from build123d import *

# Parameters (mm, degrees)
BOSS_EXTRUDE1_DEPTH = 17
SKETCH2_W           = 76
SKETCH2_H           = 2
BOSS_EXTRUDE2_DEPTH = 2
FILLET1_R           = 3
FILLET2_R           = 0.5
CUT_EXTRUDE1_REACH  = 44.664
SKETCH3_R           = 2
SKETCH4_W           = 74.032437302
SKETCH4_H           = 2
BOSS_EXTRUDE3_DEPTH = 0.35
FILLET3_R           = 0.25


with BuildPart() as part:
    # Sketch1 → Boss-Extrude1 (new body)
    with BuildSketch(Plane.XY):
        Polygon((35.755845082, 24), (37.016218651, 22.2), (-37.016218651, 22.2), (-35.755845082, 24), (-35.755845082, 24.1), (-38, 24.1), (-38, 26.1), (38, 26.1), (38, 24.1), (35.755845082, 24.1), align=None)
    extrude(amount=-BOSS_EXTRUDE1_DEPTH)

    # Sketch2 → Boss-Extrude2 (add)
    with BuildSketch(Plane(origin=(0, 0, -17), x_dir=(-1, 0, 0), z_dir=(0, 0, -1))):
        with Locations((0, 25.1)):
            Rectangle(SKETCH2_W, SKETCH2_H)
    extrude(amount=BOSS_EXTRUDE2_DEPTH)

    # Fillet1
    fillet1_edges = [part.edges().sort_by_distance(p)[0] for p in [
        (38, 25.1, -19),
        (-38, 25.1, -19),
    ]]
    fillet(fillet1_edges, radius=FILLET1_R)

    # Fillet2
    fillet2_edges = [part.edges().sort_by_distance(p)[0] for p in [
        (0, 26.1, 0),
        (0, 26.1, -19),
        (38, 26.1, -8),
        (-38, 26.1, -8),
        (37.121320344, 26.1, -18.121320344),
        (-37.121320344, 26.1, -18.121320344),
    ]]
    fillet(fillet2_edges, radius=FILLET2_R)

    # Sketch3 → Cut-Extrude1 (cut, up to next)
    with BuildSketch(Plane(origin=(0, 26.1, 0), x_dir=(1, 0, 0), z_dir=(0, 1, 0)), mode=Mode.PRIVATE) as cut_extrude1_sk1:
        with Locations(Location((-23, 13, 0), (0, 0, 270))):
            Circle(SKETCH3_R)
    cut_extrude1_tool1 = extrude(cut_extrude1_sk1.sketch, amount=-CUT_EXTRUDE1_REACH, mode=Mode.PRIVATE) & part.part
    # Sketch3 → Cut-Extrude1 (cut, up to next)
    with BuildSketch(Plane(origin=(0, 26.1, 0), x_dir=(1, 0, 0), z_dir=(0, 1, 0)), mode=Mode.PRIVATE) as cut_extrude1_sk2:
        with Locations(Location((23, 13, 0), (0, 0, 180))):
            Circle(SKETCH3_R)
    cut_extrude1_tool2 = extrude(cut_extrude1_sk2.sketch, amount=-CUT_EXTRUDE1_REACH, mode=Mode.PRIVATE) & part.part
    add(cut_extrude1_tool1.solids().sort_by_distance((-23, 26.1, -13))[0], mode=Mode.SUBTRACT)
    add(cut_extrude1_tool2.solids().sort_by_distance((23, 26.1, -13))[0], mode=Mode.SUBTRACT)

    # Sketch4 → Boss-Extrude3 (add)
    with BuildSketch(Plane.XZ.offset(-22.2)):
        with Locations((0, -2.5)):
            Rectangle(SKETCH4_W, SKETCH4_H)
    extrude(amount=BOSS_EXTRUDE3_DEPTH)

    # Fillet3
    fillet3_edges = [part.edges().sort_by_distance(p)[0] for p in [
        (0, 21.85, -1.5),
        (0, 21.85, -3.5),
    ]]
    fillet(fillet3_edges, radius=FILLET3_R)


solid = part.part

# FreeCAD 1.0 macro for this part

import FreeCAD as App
import Part
import Sketcher
Q = App.Units.Quantity


def edges_at(feature, points):
    """Names of the edges that pass closest to the given points."""
    edges = feature.Shape.Edges
    near = lambda p: min(range(len(edges)), key=lambda i: edges[i].distToShape(Part.Vertex(*p))[0])
    return sorted({f"Edge{near(p) + 1}" for p in points})

doc = App.newDocument("Part")
params = doc.addObject("Spreadsheet::Sheet", "Params")
for row, (alias, value) in enumerate([
    ("sketch1_width", "76 mm"),
    ("sketch1_height", "2 mm"),
    ("sketch1_height2", "0.1 mm"),
    ("pad1_length", "17 mm"),
    ("sketch2_width", "76 mm"),
    ("sketch2_height", "2 mm"),
    ("pad2_length", "2 mm"),
    ("fillet_radius", "3 mm"),
    ("fillet2_radius", "0.5 mm"),
    ("sketch3_diameter", "4 mm"),
    ("sketch4_diameter", "4 mm"),
    ("sketch5_height", "2 mm"),
    ("pad3_length", "0.35 mm"),
    ("fillet3_radius", "0.25 mm"),
], start=1):
    params.set(f"A{row}", alias)
    params.set(f"B{row}", "=" + value)
    params.setAlias(f"B{row}", alias)

body = doc.addObject("PartDesign::Body", "Body")

sketch1 = doc.addObject("Sketcher::SketchObject", "Sketch")
body.addObject(sketch1)
sketch1.AttachmentSupport = (doc.XY_Plane, [""])
sketch1.MapMode = "FlatFace"
sketch1.addGeometry([
    Part.LineSegment(App.Vector(37.02, 22.2, 0), App.Vector(35.76, 24, 0)),
    Part.LineSegment(App.Vector(35.76, 24, 0), App.Vector(35.76, 24.1, 0)),
    Part.LineSegment(App.Vector(35.76, 24.1, 0), App.Vector(38, 24.1, 0)),
    Part.LineSegment(App.Vector(38, 24.1, 0), App.Vector(38, 26.1, 0)),
    Part.LineSegment(App.Vector(38, 26.1, 0), App.Vector(-38, 26.1, 0)),
    Part.LineSegment(App.Vector(-38, 26.1, 0), App.Vector(-38, 24.1, 0)),
    Part.LineSegment(App.Vector(-38, 24.1, 0), App.Vector(-35.76, 24.1, 0)),
    Part.LineSegment(App.Vector(-35.76, 24.1, 0), App.Vector(-35.76, 24, 0)),
    Part.LineSegment(App.Vector(-35.76, 24, 0), App.Vector(-37.02, 22.2, 0)),
    Part.LineSegment(App.Vector(-37.02, 22.2, 0), App.Vector(37.02, 22.2, 0)),
], False)
sketch1.addConstraint([
    Sketcher.Constraint("Coincident", 0, 2, 1, 1),
    Sketcher.Constraint("Coincident", 1, 2, 2, 1),
    Sketcher.Constraint("Coincident", 2, 2, 3, 1),
    Sketcher.Constraint("Coincident", 3, 2, 4, 1),
    Sketcher.Constraint("Coincident", 4, 2, 5, 1),
    Sketcher.Constraint("Coincident", 5, 2, 6, 1),
    Sketcher.Constraint("Coincident", 6, 2, 7, 1),
    Sketcher.Constraint("Coincident", 7, 2, 8, 1),
    Sketcher.Constraint("Coincident", 8, 2, 9, 1),
    Sketcher.Constraint("Coincident", 9, 2, 0, 1),
    Sketcher.Constraint("Vertical", 1),
    Sketcher.Constraint("Horizontal", 2),
    Sketcher.Constraint("Vertical", 3),
    Sketcher.Constraint("Horizontal", 4),
    Sketcher.Constraint("Vertical", 5),
    Sketcher.Constraint("Horizontal", 6),
    Sketcher.Constraint("Vertical", 7),
    Sketcher.Constraint("Horizontal", 9),
    Sketcher.Constraint("Symmetric", 2, 2, 5, 2, -2),
    Sketcher.Constraint("Symmetric", 0, 2, 7, 2, -2),
    Sketcher.Constraint("Equal", 0, 8),
    Sketcher.Constraint("DistanceX", 4, 2, 4, 1, Q("76 mm")),
    Sketcher.Constraint("DistanceY", 3, 1, 3, 2, Q("2 mm")),
    Sketcher.Constraint("Angle", 0, Q("125 deg")),
    Sketcher.Constraint("DistanceY", 1, 1, 1, 2, Q("0.1 mm")),
    Sketcher.Constraint("DistanceY", -1, 1, 0, 2, Q("24 mm")),
    Sketcher.Constraint("DistanceY", -1, 1, 8, 2, Q("22.2 mm")),
    Sketcher.Constraint("DistanceX", 2, 1, 2, 2, Q("2.244155 mm")),
])
sketch1.setExpression("Constraints[21]", "Params.sketch1_width")
sketch1.setExpression("Constraints[22]", "Params.sketch1_height")
sketch1.setExpression("Constraints[24]", "Params.sketch1_height2")
pad1 = doc.addObject("PartDesign::Pad", "Pad")
body.addObject(pad1)
pad1.Profile = sketch1
pad1.setExpression("Length", "Params.pad1_length")
pad1.Reversed = True

sketch2 = doc.addObject("Sketcher::SketchObject", "Sketch001")
body.addObject(sketch2)
sketch2.AttachmentSupport = (doc.XY_Plane, [""])
sketch2.MapMode = "FlatFace"
sketch2.AttachmentOffset = App.Placement(App.Vector(0, 0, -17), App.Rotation())
sketch2.addGeometry([
    Part.LineSegment(App.Vector(38, 26.1, 0), App.Vector(38, 24.1, 0)),
    Part.LineSegment(App.Vector(38, 24.1, 0), App.Vector(-38, 24.1, 0)),
    Part.LineSegment(App.Vector(-38, 24.1, 0), App.Vector(-38, 26.1, 0)),
    Part.LineSegment(App.Vector(-38, 26.1, 0), App.Vector(38, 26.1, 0)),
], False)
sketch2.addConstraint([
    Sketcher.Constraint("Coincident", 0, 2, 1, 1),
    Sketcher.Constraint("Coincident", 1, 2, 2, 1),
    Sketcher.Constraint("Coincident", 2, 2, 3, 1),
    Sketcher.Constraint("Coincident", 3, 2, 0, 1),
    Sketcher.Constraint("Vertical", 0),
    Sketcher.Constraint("Horizontal", 1),
    Sketcher.Constraint("Vertical", 2),
    Sketcher.Constraint("Horizontal", 3),
    Sketcher.Constraint("DistanceX", 1, 2, 1, 1, Q("76 mm")),
    Sketcher.Constraint("DistanceY", 0, 2, 0, 1, Q("2 mm")),
    Sketcher.Constraint("DistanceX", -1, 1, 0, 2, Q("38 mm")),
    Sketcher.Constraint("DistanceY", -1, 1, 0, 2, Q("24.1 mm")),
])
sketch2.setExpression("Constraints[8]", "Params.sketch2_width")
sketch2.setExpression("Constraints[9]", "Params.sketch2_height")
pad2 = doc.addObject("PartDesign::Pad", "Pad001")
body.addObject(pad2)
pad2.Profile = sketch2
pad2.setExpression("Length", "Params.pad2_length")
pad2.Reversed = True
doc.recompute()

fillet = doc.addObject("PartDesign::Fillet", "Fillet")
body.addObject(fillet)
fillet.Base = (pad2, edges_at(pad2, [(38, 25.1, -19), (-38, 25.1, -19)]))
fillet.setExpression("Radius", "Params.fillet_radius")
doc.recompute()

fillet2 = doc.addObject("PartDesign::Fillet", "Fillet001")
body.addObject(fillet2)
fillet2.Base = (fillet, edges_at(fillet, [
    (0, 26.1, 0),
    (0, 26.1, -19),
    (38, 26.1, -8),
    (-38, 26.1, -8),
    (37.121, 26.1, -18.121),
    (-37.121, 26.1, -18.121),
]))
fillet2.setExpression("Radius", "Params.fillet2_radius")

sketch3 = doc.addObject("Sketcher::SketchObject", "Sketch002")
body.addObject(sketch3)
sketch3.AttachmentSupport = (doc.XZ_Plane, [""])
sketch3.MapMode = "FlatFace"
sketch3.AttachmentOffset = App.Placement(App.Vector(0, 0, -26.1), App.Rotation())
sketch3.addGeometry(Part.Circle(App.Vector(-23, -13, 0), App.Vector(0, 0, 1), 2), False)
sketch3.addConstraint([
    Sketcher.Constraint("Diameter", 0, Q("4 mm")),
    Sketcher.Constraint("DistanceX", 0, 3, -1, 1, Q("23 mm")),
    Sketcher.Constraint("DistanceY", 0, 3, -1, 1, Q("13 mm")),
])
sketch3.setExpression("Constraints[0]", "Params.sketch3_diameter")
pocket1 = doc.addObject("PartDesign::Pocket", "Pocket")
body.addObject(pocket1)
pocket1.Profile = sketch3
pocket1.Type = "UpToFirst"
pocket1.Reversed = True

sketch4 = doc.addObject("Sketcher::SketchObject", "Sketch003")
body.addObject(sketch4)
sketch4.AttachmentSupport = (doc.XZ_Plane, [""])
sketch4.MapMode = "FlatFace"
sketch4.AttachmentOffset = App.Placement(App.Vector(0, 0, -26.1), App.Rotation())
sketch4.addGeometry(Part.Circle(App.Vector(23, -13, 0), App.Vector(0, 0, 1), 2), False)
sketch4.addConstraint([
    Sketcher.Constraint("Diameter", 0, Q("4 mm")),
    Sketcher.Constraint("DistanceX", -1, 1, 0, 3, Q("23 mm")),
    Sketcher.Constraint("DistanceY", 0, 3, -1, 1, Q("13 mm")),
])
sketch4.setExpression("Constraints[0]", "Params.sketch4_diameter")
pocket2 = doc.addObject("PartDesign::Pocket", "Pocket001")
body.addObject(pocket2)
pocket2.Profile = sketch4
pocket2.Type = "UpToFirst"
pocket2.Reversed = True

sketch5 = doc.addObject("Sketcher::SketchObject", "Sketch004")
body.addObject(sketch5)
sketch5.AttachmentSupport = (doc.XZ_Plane, [""])
sketch5.MapMode = "FlatFace"
sketch5.AttachmentOffset = App.Placement(App.Vector(0, 0, -22.2), App.Rotation())
sketch5.addGeometry([
    Part.LineSegment(App.Vector(-37, -1.5, 0), App.Vector(-37, -3.5, 0)),
    Part.LineSegment(App.Vector(-37, -3.5, 0), App.Vector(37, -3.5, 0)),
    Part.LineSegment(App.Vector(37, -3.5, 0), App.Vector(37, -1.5, 0)),
    Part.LineSegment(App.Vector(37, -1.5, 0), App.Vector(-37, -1.5, 0)),
], False)
sketch5.addConstraint([
    Sketcher.Constraint("Coincident", 0, 2, 1, 1),
    Sketcher.Constraint("Coincident", 1, 2, 2, 1),
    Sketcher.Constraint("Coincident", 2, 2, 3, 1),
    Sketcher.Constraint("Coincident", 3, 2, 0, 1),
    Sketcher.Constraint("Vertical", 0),
    Sketcher.Constraint("Horizontal", 1),
    Sketcher.Constraint("Vertical", 2),
    Sketcher.Constraint("Horizontal", 3),
    Sketcher.Constraint("DistanceY", 0, 2, 0, 1, Q("2 mm")),
    Sketcher.Constraint("DistanceY", 0, 2, -1, 1, Q("3.5 mm")),
    Sketcher.Constraint("DistanceX", 1, 1, 1, 2, Q("74.032437 mm")),
    Sketcher.Constraint("DistanceX", 0, 2, -1, 1, Q("37.016219 mm")),
])
sketch5.setExpression("Constraints[8]", "Params.sketch5_height")
pad3 = doc.addObject("PartDesign::Pad", "Pad002")
body.addObject(pad3)
pad3.Profile = sketch5
pad3.setExpression("Length", "Params.pad3_length")
doc.recompute()

fillet3 = doc.addObject("PartDesign::Fillet", "Fillet002")
body.addObject(fillet3)
fillet3.Base = (pad3, edges_at(pad3, [(0, 21.85, -1.5), (0, 21.85, -3.5)]))
fillet3.setExpression("Radius", "Params.fillet3_radius")

doc.recompute()
